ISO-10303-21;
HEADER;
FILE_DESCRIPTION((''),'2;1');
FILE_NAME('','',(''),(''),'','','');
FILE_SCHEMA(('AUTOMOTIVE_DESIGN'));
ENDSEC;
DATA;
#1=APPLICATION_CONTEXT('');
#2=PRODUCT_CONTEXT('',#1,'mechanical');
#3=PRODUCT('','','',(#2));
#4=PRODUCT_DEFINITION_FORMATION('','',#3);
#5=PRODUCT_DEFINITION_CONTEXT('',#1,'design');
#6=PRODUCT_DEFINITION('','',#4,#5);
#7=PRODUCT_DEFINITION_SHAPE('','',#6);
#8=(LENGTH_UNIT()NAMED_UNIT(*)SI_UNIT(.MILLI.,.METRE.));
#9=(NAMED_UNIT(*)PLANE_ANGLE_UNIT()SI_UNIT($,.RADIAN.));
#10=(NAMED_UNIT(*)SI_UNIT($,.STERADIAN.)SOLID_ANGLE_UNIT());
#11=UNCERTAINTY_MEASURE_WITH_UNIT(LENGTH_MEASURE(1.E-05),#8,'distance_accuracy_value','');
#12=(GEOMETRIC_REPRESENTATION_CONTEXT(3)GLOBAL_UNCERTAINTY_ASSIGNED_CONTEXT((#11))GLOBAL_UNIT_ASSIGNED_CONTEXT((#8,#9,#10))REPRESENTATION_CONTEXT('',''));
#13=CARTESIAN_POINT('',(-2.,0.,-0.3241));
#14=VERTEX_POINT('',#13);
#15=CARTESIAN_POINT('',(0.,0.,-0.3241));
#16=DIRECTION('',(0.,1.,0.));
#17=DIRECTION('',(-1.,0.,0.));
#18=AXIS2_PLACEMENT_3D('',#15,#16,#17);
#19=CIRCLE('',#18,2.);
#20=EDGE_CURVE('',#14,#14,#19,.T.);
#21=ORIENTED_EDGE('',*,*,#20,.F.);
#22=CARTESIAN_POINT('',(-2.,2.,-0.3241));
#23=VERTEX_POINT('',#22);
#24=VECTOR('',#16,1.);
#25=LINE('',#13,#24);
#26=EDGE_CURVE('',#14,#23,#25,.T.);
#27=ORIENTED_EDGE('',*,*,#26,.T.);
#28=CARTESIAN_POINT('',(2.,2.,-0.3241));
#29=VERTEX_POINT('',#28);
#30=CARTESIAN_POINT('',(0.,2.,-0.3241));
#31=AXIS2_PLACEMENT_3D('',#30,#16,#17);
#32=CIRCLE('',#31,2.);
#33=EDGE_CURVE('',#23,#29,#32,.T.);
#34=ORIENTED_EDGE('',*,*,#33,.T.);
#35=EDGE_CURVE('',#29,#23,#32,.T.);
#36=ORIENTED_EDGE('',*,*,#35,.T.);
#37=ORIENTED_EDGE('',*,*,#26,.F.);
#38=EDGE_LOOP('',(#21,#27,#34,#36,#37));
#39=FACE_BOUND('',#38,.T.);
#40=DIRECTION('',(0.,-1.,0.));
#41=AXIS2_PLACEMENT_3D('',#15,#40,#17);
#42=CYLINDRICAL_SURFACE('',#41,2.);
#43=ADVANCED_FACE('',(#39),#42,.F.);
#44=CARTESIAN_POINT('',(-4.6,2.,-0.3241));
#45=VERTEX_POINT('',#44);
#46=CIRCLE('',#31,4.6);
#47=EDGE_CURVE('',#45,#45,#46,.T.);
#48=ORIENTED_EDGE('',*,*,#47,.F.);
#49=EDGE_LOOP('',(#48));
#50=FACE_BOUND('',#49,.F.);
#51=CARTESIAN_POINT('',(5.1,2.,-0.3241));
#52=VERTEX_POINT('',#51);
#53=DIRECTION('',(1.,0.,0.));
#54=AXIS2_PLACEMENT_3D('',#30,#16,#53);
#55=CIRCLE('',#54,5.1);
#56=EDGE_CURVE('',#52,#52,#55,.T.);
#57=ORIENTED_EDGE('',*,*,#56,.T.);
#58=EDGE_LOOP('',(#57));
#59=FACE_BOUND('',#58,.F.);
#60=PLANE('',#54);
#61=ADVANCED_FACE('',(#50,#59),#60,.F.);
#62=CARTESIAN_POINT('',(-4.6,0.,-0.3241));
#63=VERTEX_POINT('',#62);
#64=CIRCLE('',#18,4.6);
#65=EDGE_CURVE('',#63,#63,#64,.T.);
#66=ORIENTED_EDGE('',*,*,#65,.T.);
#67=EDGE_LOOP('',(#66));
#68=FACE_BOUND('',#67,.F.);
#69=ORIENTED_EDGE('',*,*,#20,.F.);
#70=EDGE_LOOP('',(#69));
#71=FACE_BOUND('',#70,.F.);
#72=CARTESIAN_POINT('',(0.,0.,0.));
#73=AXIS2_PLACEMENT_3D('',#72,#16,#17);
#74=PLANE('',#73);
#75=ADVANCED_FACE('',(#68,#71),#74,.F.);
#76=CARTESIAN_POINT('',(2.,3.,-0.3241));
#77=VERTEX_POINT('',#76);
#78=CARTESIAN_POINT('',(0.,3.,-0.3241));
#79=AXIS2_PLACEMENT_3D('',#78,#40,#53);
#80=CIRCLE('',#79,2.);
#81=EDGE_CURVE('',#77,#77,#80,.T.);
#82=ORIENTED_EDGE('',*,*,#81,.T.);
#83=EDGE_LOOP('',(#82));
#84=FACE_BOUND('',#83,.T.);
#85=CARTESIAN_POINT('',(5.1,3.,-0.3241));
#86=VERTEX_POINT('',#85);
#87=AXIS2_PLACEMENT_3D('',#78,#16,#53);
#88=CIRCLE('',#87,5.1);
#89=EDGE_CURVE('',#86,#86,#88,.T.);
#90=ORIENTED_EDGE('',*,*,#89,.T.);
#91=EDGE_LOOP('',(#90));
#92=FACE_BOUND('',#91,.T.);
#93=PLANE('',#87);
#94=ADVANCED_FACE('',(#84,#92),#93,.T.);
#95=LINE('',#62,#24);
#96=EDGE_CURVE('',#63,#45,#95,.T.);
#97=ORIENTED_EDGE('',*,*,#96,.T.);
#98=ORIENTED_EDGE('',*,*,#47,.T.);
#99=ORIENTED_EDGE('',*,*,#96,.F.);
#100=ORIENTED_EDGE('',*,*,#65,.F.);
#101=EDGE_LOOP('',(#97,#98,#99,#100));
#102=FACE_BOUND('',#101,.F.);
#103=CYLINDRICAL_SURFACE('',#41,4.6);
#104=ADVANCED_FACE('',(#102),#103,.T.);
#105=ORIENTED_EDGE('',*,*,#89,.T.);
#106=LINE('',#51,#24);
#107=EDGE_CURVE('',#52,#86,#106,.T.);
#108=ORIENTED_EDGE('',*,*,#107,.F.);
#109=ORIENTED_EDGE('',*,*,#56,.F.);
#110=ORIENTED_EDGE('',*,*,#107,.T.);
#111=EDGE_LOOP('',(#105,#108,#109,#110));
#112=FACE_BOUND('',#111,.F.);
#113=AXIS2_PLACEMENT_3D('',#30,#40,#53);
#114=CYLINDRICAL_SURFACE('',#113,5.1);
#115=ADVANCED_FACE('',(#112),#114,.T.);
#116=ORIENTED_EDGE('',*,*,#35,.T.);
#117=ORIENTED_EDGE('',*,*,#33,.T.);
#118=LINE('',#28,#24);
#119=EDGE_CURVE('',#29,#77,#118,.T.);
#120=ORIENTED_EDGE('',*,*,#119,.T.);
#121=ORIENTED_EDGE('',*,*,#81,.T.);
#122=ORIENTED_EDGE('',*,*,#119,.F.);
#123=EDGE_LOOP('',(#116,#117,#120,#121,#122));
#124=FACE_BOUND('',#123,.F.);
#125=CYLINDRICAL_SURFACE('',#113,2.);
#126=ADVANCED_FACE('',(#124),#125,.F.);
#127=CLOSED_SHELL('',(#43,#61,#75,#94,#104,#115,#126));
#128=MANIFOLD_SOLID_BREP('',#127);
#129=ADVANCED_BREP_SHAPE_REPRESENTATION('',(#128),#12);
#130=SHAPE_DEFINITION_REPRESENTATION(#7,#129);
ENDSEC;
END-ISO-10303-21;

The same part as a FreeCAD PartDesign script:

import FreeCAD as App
import Part
import Sketcher
from FreeCAD import Vector

doc = App.newDocument("Part")
body = doc.addObject("PartDesign::Body", "Body")

sketch1 = body.newObject("Sketcher::SketchObject", "Sketch")
sketch1.AttachmentSupport = (doc.getObject("XZ_Plane"), [""])
sketch1.MapMode = "FlatFace"
sketch1.addGeometry([
    Part.Circle(Vector(0, -0.3, 0), Vector(0, 0, 1), 4.6),
    Part.Circle(Vector(0, -0.3, 0), Vector(0, 0, 1), 2),
], False)
sketch1.addConstraint([
    Sketcher.Constraint("Coincident", 1, 3, 0, 3),
    Sketcher.Constraint("PointOnObject", 0, 3, -2),
    Sketcher.Constraint("Diameter", 1, 4.0),
    Sketcher.Constraint("Diameter", 0, 9.2),
    Sketcher.Constraint("DistanceY", 0, 3, -1, 1, 0.324),
])
pad1 = body.newObject("PartDesign::Pad", "Pad")
pad1.Profile = sketch1
pad1.Length = 2
pad1.Reversed = True

sketch2 = body.newObject("Sketcher::SketchObject", "Sketch001")
sketch2.AttachmentSupport = (doc.getObject("XZ_Plane"), [""])
sketch2.MapMode = "FlatFace"
sketch2.AttachmentOffset = App.Placement(Vector(0, 0, -2), App.Rotation())
sketch2.addGeometry(Part.Circle(Vector(0, 0, 0), Vector(0, 0, 1), 5), False)
sketch2.addConstraint([
    Sketcher.Constraint("PointOnObject", 0, 3, -2),
    Sketcher.Constraint("Diameter", 0, 10.2),
    Sketcher.Constraint("DistanceY", 0, 3, -1, 1, 0.324),
])
pad2 = body.newObject("PartDesign::Pad", "Pad001")
pad2.Profile = sketch2
pad2.Length = 1
pad2.Reversed = True

sketch3 = body.newObject("Sketcher::SketchObject", "Sketch002")
sketch3.AttachmentSupport = (doc.getObject("XZ_Plane"), [""])
sketch3.MapMode = "FlatFace"
sketch3.AttachmentOffset = App.Placement(Vector(0, 0, -2), App.Rotation())
sketch3.addGeometry(Part.Circle(Vector(0, -0.3, 0), Vector(0, 0, 1), 2), False)
sketch3.addConstraint([
    Sketcher.Constraint("PointOnObject", 0, 3, -2),
    Sketcher.Constraint("Diameter", 0, 4.0),
    Sketcher.Constraint("DistanceY", 0, 3, -1, 1, 0.324),
])
pocket1 = body.newObject("PartDesign::Pocket", "Pocket")
pocket1.Profile = sketch3
pocket1.Length = 1

doc.recompute()
